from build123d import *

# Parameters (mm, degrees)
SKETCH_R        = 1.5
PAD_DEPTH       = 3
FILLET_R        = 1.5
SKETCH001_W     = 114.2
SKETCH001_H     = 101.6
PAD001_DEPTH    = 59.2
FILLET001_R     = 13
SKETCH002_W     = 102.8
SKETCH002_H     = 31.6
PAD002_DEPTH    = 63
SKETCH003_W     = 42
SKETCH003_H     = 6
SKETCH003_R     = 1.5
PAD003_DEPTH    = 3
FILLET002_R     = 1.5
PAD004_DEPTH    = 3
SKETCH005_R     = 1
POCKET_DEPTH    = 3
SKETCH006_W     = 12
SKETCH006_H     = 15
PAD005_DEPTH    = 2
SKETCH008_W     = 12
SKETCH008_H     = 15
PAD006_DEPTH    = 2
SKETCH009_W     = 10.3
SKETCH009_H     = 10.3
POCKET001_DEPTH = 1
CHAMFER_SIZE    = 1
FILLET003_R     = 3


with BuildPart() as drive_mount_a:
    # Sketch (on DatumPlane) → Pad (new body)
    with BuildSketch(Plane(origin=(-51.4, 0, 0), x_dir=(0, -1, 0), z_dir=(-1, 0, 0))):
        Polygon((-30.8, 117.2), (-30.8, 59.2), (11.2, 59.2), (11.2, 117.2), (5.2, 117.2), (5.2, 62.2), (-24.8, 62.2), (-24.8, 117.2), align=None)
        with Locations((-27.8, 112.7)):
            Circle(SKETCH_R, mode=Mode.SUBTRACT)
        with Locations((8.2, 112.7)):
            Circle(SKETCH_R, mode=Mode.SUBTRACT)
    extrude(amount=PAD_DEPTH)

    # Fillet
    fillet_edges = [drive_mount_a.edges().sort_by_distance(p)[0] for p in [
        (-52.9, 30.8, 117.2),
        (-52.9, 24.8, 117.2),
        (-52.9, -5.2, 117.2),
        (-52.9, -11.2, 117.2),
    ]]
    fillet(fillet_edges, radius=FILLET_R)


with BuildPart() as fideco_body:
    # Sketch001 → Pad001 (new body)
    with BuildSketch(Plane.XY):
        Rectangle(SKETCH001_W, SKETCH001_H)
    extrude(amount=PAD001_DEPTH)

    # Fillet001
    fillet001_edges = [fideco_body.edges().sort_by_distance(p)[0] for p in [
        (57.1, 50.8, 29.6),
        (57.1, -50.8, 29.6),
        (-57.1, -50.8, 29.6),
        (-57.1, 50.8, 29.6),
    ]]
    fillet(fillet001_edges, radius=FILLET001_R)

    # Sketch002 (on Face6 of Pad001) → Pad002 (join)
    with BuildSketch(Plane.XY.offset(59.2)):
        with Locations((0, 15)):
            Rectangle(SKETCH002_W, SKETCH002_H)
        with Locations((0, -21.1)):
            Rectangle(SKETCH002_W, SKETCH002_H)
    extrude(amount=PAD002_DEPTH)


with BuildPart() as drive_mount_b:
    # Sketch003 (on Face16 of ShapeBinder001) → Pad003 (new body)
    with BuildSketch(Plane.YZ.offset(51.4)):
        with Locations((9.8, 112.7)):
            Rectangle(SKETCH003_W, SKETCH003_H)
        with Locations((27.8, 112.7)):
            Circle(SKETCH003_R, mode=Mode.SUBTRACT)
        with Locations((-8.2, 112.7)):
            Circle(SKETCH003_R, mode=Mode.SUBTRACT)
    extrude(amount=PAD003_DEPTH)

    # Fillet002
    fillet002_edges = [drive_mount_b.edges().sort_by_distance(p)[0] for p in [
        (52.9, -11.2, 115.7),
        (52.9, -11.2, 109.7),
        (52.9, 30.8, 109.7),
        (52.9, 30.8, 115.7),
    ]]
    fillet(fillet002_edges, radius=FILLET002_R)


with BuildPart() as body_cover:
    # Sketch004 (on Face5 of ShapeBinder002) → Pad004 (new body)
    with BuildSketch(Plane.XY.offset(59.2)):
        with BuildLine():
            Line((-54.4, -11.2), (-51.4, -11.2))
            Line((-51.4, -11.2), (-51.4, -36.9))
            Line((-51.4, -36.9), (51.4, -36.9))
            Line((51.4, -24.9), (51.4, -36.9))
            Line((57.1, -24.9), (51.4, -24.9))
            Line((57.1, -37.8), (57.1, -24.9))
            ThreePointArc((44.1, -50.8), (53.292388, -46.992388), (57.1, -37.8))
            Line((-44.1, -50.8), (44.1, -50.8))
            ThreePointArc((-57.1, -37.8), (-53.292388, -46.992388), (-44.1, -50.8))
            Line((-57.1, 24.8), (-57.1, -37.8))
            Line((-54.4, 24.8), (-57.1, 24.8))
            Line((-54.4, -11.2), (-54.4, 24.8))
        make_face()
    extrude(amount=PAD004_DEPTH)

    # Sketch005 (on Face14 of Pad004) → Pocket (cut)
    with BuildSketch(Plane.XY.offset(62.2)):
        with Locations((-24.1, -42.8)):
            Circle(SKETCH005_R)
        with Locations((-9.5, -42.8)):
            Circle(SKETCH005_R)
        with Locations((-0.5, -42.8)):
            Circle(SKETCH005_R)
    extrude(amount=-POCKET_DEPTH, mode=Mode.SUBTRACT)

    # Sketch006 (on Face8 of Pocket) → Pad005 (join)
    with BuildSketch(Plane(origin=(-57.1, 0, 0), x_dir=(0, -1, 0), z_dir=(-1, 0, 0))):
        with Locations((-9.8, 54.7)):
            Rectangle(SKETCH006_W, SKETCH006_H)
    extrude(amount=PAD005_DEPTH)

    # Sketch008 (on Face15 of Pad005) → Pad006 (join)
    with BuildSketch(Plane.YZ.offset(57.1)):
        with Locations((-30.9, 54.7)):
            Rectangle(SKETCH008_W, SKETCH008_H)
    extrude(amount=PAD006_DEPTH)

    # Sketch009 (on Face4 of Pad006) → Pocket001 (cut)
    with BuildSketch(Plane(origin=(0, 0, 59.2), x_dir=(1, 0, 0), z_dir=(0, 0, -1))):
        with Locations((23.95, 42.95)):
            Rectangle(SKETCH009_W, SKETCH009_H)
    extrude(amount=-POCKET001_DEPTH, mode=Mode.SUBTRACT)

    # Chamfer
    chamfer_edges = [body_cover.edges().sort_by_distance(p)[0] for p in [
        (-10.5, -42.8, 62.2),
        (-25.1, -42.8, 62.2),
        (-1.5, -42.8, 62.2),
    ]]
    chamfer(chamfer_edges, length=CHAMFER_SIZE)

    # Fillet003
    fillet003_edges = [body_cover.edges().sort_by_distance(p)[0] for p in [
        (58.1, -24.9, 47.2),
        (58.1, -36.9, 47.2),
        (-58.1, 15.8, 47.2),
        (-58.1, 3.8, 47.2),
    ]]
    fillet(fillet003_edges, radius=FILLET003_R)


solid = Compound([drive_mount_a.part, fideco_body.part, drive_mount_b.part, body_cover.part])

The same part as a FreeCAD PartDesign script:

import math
import FreeCAD as App
import Part
import Sketcher

V = App.Vector


def edges_at(feature, points):
    """Names of the edges that pass closest to the given points."""
    edges = feature.Shape.Edges
    near = lambda p: min(range(len(edges)), key=lambda i: edges[i].distToShape(Part.Vertex(*p))[0])
    return sorted({f"Edge{near(p) + 1}" for p in points})

doc = App.newDocument("Part")
body = doc.addObject("PartDesign::Body", "Body")

# Sketch on YZ plane
sketch1 = doc.addObject("Sketcher::SketchObject", "Sketch")
body.addObject(sketch1)
sketch1.AttachmentSupport = (doc.YZ_Plane, [""])
sketch1.MapMode = "FlatFace"
sketch1.AttachmentOffset = App.Placement(V(0, 0, -51.4), App.Rotation())
sketch1.addGeometry([
    Part.LineSegment(V(30.8, 117.2, 0), V(30.8, 59.2, 0)),  # 0
    Part.LineSegment(V(30.8, 59.2, 0), V(-11.2, 59.2, 0)),  # 1
    Part.LineSegment(V(-11.2, 59.2, 0), V(-11.2, 117.2, 0)),  # 2
    Part.LineSegment(V(-11.2, 117.2, 0), V(-5.2, 117.2, 0)),  # 3
    Part.LineSegment(V(-5.2, 117.2, 0), V(-5.2, 62.2, 0)),  # 4
    Part.LineSegment(V(-5.2, 62.2, 0), V(24.8, 62.2, 0)),  # 5
    Part.LineSegment(V(24.8, 62.2, 0), V(24.8, 117.2, 0)),  # 6
    Part.LineSegment(V(24.8, 117.2, 0), V(30.8, 117.2, 0)),  # 7
    Part.Circle(V(27.8, 112.7, 0), V(0, 0, 1), 1.5),  # 8
    Part.Circle(V(-8.2, 112.7, 0), V(0, 0, 1), 1.5),  # 9
], False)
sketch1.addConstraint([
    Sketcher.Constraint("Coincident", 0, 2, 1, 1),
    Sketcher.Constraint("Coincident", 1, 2, 2, 1),
    Sketcher.Constraint("Coincident", 2, 2, 3, 1),
    Sketcher.Constraint("Coincident", 3, 2, 4, 1),
    Sketcher.Constraint("Coincident", 4, 2, 5, 1),
    Sketcher.Constraint("Coincident", 5, 2, 6, 1),
    Sketcher.Constraint("Coincident", 6, 2, 7, 1),
    Sketcher.Constraint("Coincident", 7, 2, 0, 1),
    Sketcher.Constraint("Vertical", 0),
    Sketcher.Constraint("Horizontal", 1),
    Sketcher.Constraint("Vertical", 2),
    Sketcher.Constraint("Horizontal", 3),
    Sketcher.Constraint("Vertical", 4),
    Sketcher.Constraint("Horizontal", 5),
    Sketcher.Constraint("Vertical", 6),
    Sketcher.Constraint("Horizontal", 7),
    Sketcher.Constraint("Equal", 8, 9),
    Sketcher.Constraint("Horizontal", 8, 3, 9, 3),
    Sketcher.Constraint("Horizontal", 3, 2, 6, 2),
    Sketcher.Constraint("Equal", 3, 7),
    Sketcher.Constraint("Diameter", 8, 3.0),
    Sketcher.Constraint("DistanceX", 1, 2, 1, 1, 42.0),
    Sketcher.Constraint("DistanceX", 3, 1, 3, 2, 6.0),
    Sketcher.Constraint("DistanceY", 0, 2, 0, 1, 58.0),
    Sketcher.Constraint("DistanceY", 4, 2, 4, 1, 55.0),
    Sketcher.Constraint("DistanceX", 9, 3, 8, 3, 36.0),
    Sketcher.Constraint("DistanceX", 8, 3, 0, 2, 3.0),
    Sketcher.Constraint("DistanceX", -1, 1, 8, 3, 27.8),
    Sketcher.Constraint("DistanceY", -1, 1, 8, 3, 112.7),
    Sketcher.Constraint("DistanceY", -1, 1, 0, 2, 59.2),
])
pad1 = doc.addObject("PartDesign::Pad", "Pad")
body.addObject(pad1)
pad1.Profile = sketch1
pad1.Length = 3
pad1.Reversed = True
doc.recompute()

fillet = doc.addObject("PartDesign::Fillet", "Fillet")
body.addObject(fillet)
fillet.Base = (pad1, edges_at(pad1, [
    (-52.9, 30.8, 117.2),
    (-52.9, 24.8, 117.2),
    (-52.9, -5.2, 117.2),
    (-52.9, -11.2, 117.2),
]))
fillet.Radius = 1.5
body2 = doc.addObject("PartDesign::Body", "Body001")

# Sketch on XY plane
sketch2 = doc.addObject("Sketcher::SketchObject", "Sketch001")
body2.addObject(sketch2)
sketch2.AttachmentSupport = (doc.getObject("XY_Plane001"), [""])
sketch2.MapMode = "FlatFace"
sketch2.addGeometry([
    Part.LineSegment(V(-57, 51, 0), V(-57, -51, 0)),
    Part.LineSegment(V(-57, -51, 0), V(57, -51, 0)),
    Part.LineSegment(V(57, -51, 0), V(57, 51, 0)),
    Part.LineSegment(V(57, 51, 0), V(-57, 51, 0)),
], False)
sketch2.addConstraint([
    Sketcher.Constraint("Coincident", 0, 2, 1, 1),
    Sketcher.Constraint("Coincident", 1, 2, 2, 1),
    Sketcher.Constraint("Coincident", 2, 2, 3, 1),
    Sketcher.Constraint("Coincident", 3, 2, 0, 1),
    Sketcher.Constraint("Vertical", 0),
    Sketcher.Constraint("Horizontal", 1),
    Sketcher.Constraint("Vertical", 2),
    Sketcher.Constraint("Horizontal", 3),
    Sketcher.Constraint("Symmetric", 0, 2, 2, 2, -1, 1),
    Sketcher.Constraint("DistanceX", 1, 1, 1, 2, 114.2),
    Sketcher.Constraint("DistanceY", 0, 2, 0, 1, 101.6),
])
pad2 = doc.addObject("PartDesign::Pad", "Pad001")
body2.addObject(pad2)
pad2.Profile = sketch2
pad2.Length = 59.2
doc.recompute()

fillet2 = doc.addObject("PartDesign::Fillet", "Fillet001")
body2.addObject(fillet2)
fillet2.Base = (pad2, edges_at(pad2, [
    (57.1, 50.8, 29.6),
    (57.1, -50.8, 29.6),
    (-57.1, -50.8, 29.6),
    (-57.1, 50.8, 29.6),
]))
fillet2.Radius = 13

# Sketch on XY plane
sketch3 = doc.addObject("Sketcher::SketchObject", "Sketch002")
body2.addObject(sketch3)
sketch3.AttachmentSupport = (doc.getObject("XY_Plane001"), [""])
sketch3.MapMode = "FlatFace"
sketch3.AttachmentOffset = App.Placement(V(0, 0, 59.2), App.Rotation())
sketch3.addGeometry([
    Part.LineSegment(V(-51, 31, 0), V(-51, -1, 0)),  # 0
    Part.LineSegment(V(-51, -1, 0), V(51, -1, 0)),  # 1
    Part.LineSegment(V(51, -1, 0), V(51, 31, 0)),  # 2
    Part.LineSegment(V(51, 31, 0), V(-51, 31, 0)),  # 3
    Part.LineSegment(V(-51, -5, 0), V(-51, -37, 0)),  # 4
    Part.LineSegment(V(-51, -37, 0), V(51, -37, 0)),  # 5
    Part.LineSegment(V(51, -37, 0), V(51, -5, 0)),  # 6
    Part.LineSegment(V(51, -5, 0), V(-51, -5, 0)),  # 7
], False)
sketch3.addConstraint([
    Sketcher.Constraint("Coincident", 0, 2, 1, 1),
    Sketcher.Constraint("Coincident", 1, 2, 2, 1),
    Sketcher.Constraint("Coincident", 2, 2, 3, 1),
    Sketcher.Constraint("Coincident", 3, 2, 0, 1),
    Sketcher.Constraint("Coincident", 4, 2, 5, 1),
    Sketcher.Constraint("Coincident", 5, 2, 6, 1),
    Sketcher.Constraint("Coincident", 6, 2, 7, 1),
    Sketcher.Constraint("Coincident", 7, 2, 4, 1),
    Sketcher.Constraint("Vertical", 0),
    Sketcher.Constraint("Horizontal", 1),
    Sketcher.Constraint("Vertical", 2),
    Sketcher.Constraint("Horizontal", 3),
    Sketcher.Constraint("Vertical", 4),
    Sketcher.Constraint("Horizontal", 5),
    Sketcher.Constraint("Vertical", 6),
    Sketcher.Constraint("Horizontal", 7),
    Sketcher.Constraint("Vertical", 3, 2, 4, 2),
    Sketcher.Constraint("Vertical", 2, 2, 5, 2),
    Sketcher.Constraint("Equal", 2, 4),
    Sketcher.Constraint("DistanceX", 1, 1, 1, 2, 102.8),
    Sketcher.Constraint("DistanceY", 0, 2, 0, 1, 31.6),
    Sketcher.Constraint("DistanceX", 0, 2, -1, 1, 51.4),
    Sketcher.Constraint("DistanceY", 0, 2, -1, 1, 0.8),
    Sketcher.Constraint("DistanceY", 4, 2, -1, 1, 36.9),
])
pad3 = doc.addObject("PartDesign::Pad", "Pad002")
body2.addObject(pad3)
pad3.Profile = sketch3
pad3.Length = 63
body3 = doc.addObject("PartDesign::Body", "Body002")

# Sketch on YZ plane
sketch4 = doc.addObject("Sketcher::SketchObject", "Sketch003")
body3.addObject(sketch4)
sketch4.AttachmentSupport = (doc.getObject("YZ_Plane002"), [""])
sketch4.MapMode = "FlatFace"
sketch4.AttachmentOffset = App.Placement(V(0, 0, 51.4), App.Rotation())
sketch4.addGeometry([
    Part.LineSegment(V(-11.2, 115.7, 0), V(-11.2, 109.7, 0)),  # 0
    Part.LineSegment(V(-11.2, 109.7, 0), V(30.8, 109.7, 0)),  # 1
    Part.LineSegment(V(30.8, 109.7, 0), V(30.8, 115.7, 0)),  # 2
    Part.LineSegment(V(30.8, 115.7, 0), V(-11.2, 115.7, 0)),  # 3
    Part.Circle(V(-8.2, 112.7, 0), V(0, 0, 1), 1.5),  # 4
    Part.Circle(V(27.8, 112.7, 0), V(0, 0, 1), 1.5),  # 5
], False)
sketch4.addConstraint([
    Sketcher.Constraint("Coincident", 0, 2, 1, 1),
    Sketcher.Constraint("Coincident", 1, 2, 2, 1),
    Sketcher.Constraint("Coincident", 2, 2, 3, 1),
    Sketcher.Constraint("Coincident", 3, 2, 0, 1),
    Sketcher.Constraint("Vertical", 0),
    Sketcher.Constraint("Horizontal", 1),
    Sketcher.Constraint("Vertical", 2),
    Sketcher.Constraint("Horizontal", 3),
    Sketcher.Constraint("Equal", 4, 5),
    Sketcher.Constraint("Horizontal", 4, 3, 5, 3),
    Sketcher.Constraint("Diameter", 4, 3.0),
    Sketcher.Constraint("DistanceX", 1, 1, 1, 2, 42.0),
    Sketcher.Constraint("DistanceY", 0, 2, 0, 1, 6.0),
    Sketcher.Constraint("DistanceX", 4, 3, 5, 3, 36.0),
    Sketcher.Constraint("DistanceX", 0, 2, 4, 3, 3.0),
    Sketcher.Constraint("DistanceY", 0, 2, 4, 3, 3.0),
    Sketcher.Constraint("DistanceX", 4, 3, -1, 1, 8.2),
    Sketcher.Constraint("DistanceY", -1, 1, 4, 3, 112.7),
])
pad4 = doc.addObject("PartDesign::Pad", "Pad003")
body3.addObject(pad4)
pad4.Profile = sketch4
pad4.Length = 3
doc.recompute()

fillet3 = doc.addObject("PartDesign::Fillet", "Fillet002")
body3.addObject(fillet3)
fillet3.Base = (pad4, edges_at(pad4, [
    (52.9, -11.2, 115.7),
    (52.9, -11.2, 109.7),
    (52.9, 30.8, 109.7),
    (52.9, 30.8, 115.7),
]))
fillet3.Radius = 1.5
body4 = doc.addObject("PartDesign::Body", "Body003")

# Sketch on XY plane
sketch5 = doc.addObject("Sketcher::SketchObject", "Sketch004")
body4.addObject(sketch5)
sketch5.AttachmentSupport = (doc.getObject("XY_Plane003"), [""])
sketch5.MapMode = "FlatFace"
sketch5.AttachmentOffset = App.Placement(V(0, 0, 59.2), App.Rotation())
sketch5.addGeometry([
    Part.LineSegment(V(-51.4, -11.2, 0), V(-54.4, -11.2, 0)),  # 0
    Part.LineSegment(V(-54.4, -11.2, 0), V(-54.4, 24.8, 0)),  # 1
    Part.LineSegment(V(-54.4, 24.8, 0), V(-57.1, 24.8, 0)),  # 2
    Part.LineSegment(V(-57.1, 24.8, 0), V(-57.1, -37.8, 0)),  # 3
    Part.ArcOfCircle(Part.Circle(V(-44.1, -37.8, 0), V(0, 0, 1), 13), math.radians(-180), math.radians(-90)),  # 4
    Part.LineSegment(V(-44.1, -50.8, 0), V(44.1, -50.8, 0)),  # 5
    Part.ArcOfCircle(Part.Circle(V(44.1, -37.8, 0), V(0, 0, 1), 13), math.radians(-90), math.radians(0)),  # 6
    Part.LineSegment(V(57.1, -37.8, 0), V(57.1, -24.9, 0)),  # 7
    Part.LineSegment(V(57.1, -24.9, 0), V(51.4, -24.9, 0)),  # 8
    Part.LineSegment(V(51.4, -24.9, 0), V(51.4, -36.9, 0)),  # 9
    Part.LineSegment(V(51.4, -36.9, 0), V(-51.4, -36.9, 0)),  # 10
    Part.LineSegment(V(-51.4, -36.9, 0), V(-51.4, -11.2, 0)),  # 11
], False)
sketch5.addConstraint([
    Sketcher.Constraint("Coincident", 0, 2, 1, 1),
    Sketcher.Constraint("Coincident", 1, 2, 2, 1),
    Sketcher.Constraint("Coincident", 2, 2, 3, 1),
    Sketcher.Constraint("Tangent", 3, 2, 4, 1),
    Sketcher.Constraint("Tangent", 4, 2, 5, 1),
    Sketcher.Constraint("Tangent", 5, 2, 6, 1),
    Sketcher.Constraint("Tangent", 6, 2, 7, 1),
    Sketcher.Constraint("Coincident", 7, 2, 8, 1),
    Sketcher.Constraint("Coincident", 8, 2, 9, 1),
    Sketcher.Constraint("Coincident", 9, 2, 10, 1),
    Sketcher.Constraint("Coincident", 10, 2, 11, 1),
    Sketcher.Constraint("Coincident", 11, 2, 0, 1),
    Sketcher.Constraint("Horizontal", 0),
    Sketcher.Constraint("Vertical", 1),
    Sketcher.Constraint("Horizontal", 2),
    Sketcher.Constraint("Vertical", 3),
    Sketcher.Constraint("Horizontal", 5),
    Sketcher.Constraint("Vertical", 7),
    Sketcher.Constraint("Horizontal", 8),
    Sketcher.Constraint("Vertical", 9),
    Sketcher.Constraint("Horizontal", 10),
    Sketcher.Constraint("Vertical", 11),
    Sketcher.Constraint("Equal", 4, 6),
    Sketcher.Constraint("Radius", 4, 13.000001),
    Sketcher.Constraint("DistanceX", 0, 2, 0, 1, 3.0),
    Sketcher.Constraint("DistanceY", 1, 1, 1, 2, 36.0),
    Sketcher.Constraint("DistanceY", 9, 2, 9, 1, 12.0),
    Sketcher.Constraint("DistanceX", 2, 2, 2, 1, 2.7),
    Sketcher.Constraint("DistanceX", 5, 1, 5, 2, 88.2),
    Sketcher.Constraint("DistanceX", 8, 2, 8, 1, 5.7),
    Sketcher.Constraint("DistanceY", 3, 2, 3, 1, 62.6),
    Sketcher.Constraint("DistanceY", 7, 1, 7, 2, 12.9),
    Sketcher.Constraint("DistanceX", 4, 3, -1, 1, 44.099999),
    Sketcher.Constraint("DistanceY", 4, 3, -1, 1, 37.799999),
])
pad5 = doc.addObject("PartDesign::Pad", "Pad004")
body4.addObject(pad5)
pad5.Profile = sketch5
pad5.Length = 3

# Sketch on XY plane
sketch6 = doc.addObject("Sketcher::SketchObject", "Sketch005")
body4.addObject(sketch6)
sketch6.AttachmentSupport = (doc.getObject("XY_Plane003"), [""])
sketch6.MapMode = "FlatFace"
sketch6.AttachmentOffset = App.Placement(V(0, 0, 62.2), App.Rotation())
sketch6.addGeometry([
    Part.Circle(V(-24.1, -42.8, 0), V(0, 0, 1), 1),
    Part.Circle(V(-9.5, -42.8, 0), V(0, 0, 1), 1),
    Part.Circle(V(-0.5, -42.8, 0), V(0, 0, 1), 1),
], False)
sketch6.addConstraint([
    Sketcher.Constraint("Equal", 0, 1),
    Sketcher.Constraint("Equal", 1, 2),
    Sketcher.Constraint("Horizontal", 0, 3, 1, 3),
    Sketcher.Constraint("Horizontal", 1, 3, 2, 3),
    Sketcher.Constraint("Diameter", 0, 2.0),
    Sketcher.Constraint("DistanceX", 1, 3, 2, 3, 9.0),
    Sketcher.Constraint("DistanceX", 0, 3, -1, 1, 24.1),
    Sketcher.Constraint("DistanceY", 0, 3, -1, 1, 42.8),
    Sketcher.Constraint("DistanceX", 1, 3, -1, 1, 9.5),
])
pocket1 = doc.addObject("PartDesign::Pocket", "Pocket")
body4.addObject(pocket1)
pocket1.Profile = sketch6
pocket1.Length = 3

# Sketch on YZ plane
sketch7 = doc.addObject("Sketcher::SketchObject", "Sketch006")
body4.addObject(sketch7)
sketch7.AttachmentSupport = (doc.getObject("YZ_Plane003"), [""])
sketch7.MapMode = "FlatFace"
sketch7.AttachmentOffset = App.Placement(V(0, 0, -57.1), App.Rotation())
sketch7.addGeometry([
    Part.LineSegment(V(16, 62, 0), V(16, 47, 0)),
    Part.LineSegment(V(16, 47, 0), V(4, 47, 0)),
    Part.LineSegment(V(4, 47, 0), V(4, 62, 0)),
    Part.LineSegment(V(4, 62, 0), V(16, 62, 0)),
], False)
sketch7.addConstraint([
    Sketcher.Constraint("Coincident", 0, 2, 1, 1),
    Sketcher.Constraint("Coincident", 1, 2, 2, 1),
    Sketcher.Constraint("Coincident", 2, 2, 3, 1),
    Sketcher.Constraint("Coincident", 3, 2, 0, 1),
    Sketcher.Constraint("Vertical", 0),
    Sketcher.Constraint("Horizontal", 1),
    Sketcher.Constraint("Vertical", 2),
    Sketcher.Constraint("Horizontal", 3),
    Sketcher.Constraint("DistanceX", 1, 2, 1, 1, 12.0),
    Sketcher.Constraint("DistanceY", 0, 2, 0, 1, 15.0),
    Sketcher.Constraint("DistanceX", -1, 1, 0, 2, 15.8),
    Sketcher.Constraint("DistanceY", -1, 1, 0, 2, 47.2),
])
pad6 = doc.addObject("PartDesign::Pad", "Pad005")
body4.addObject(pad6)
pad6.Profile = sketch7
pad6.Length = 2
pad6.Reversed = True

# Sketch on YZ plane
sketch8 = doc.addObject("Sketcher::SketchObject", "Sketch007")
body4.addObject(sketch8)
sketch8.AttachmentSupport = (doc.getObject("YZ_Plane003"), [""])
sketch8.MapMode = "FlatFace"
sketch8.AttachmentOffset = App.Placement(V(0, 0, 57.1), App.Rotation())
sketch8.addGeometry([
    Part.LineSegment(V(-37, 62, 0), V(-37, 47, 0)),
    Part.LineSegment(V(-37, 47, 0), V(-25, 47, 0)),
    Part.LineSegment(V(-25, 47, 0), V(-25, 62, 0)),
    Part.LineSegment(V(-25, 62, 0), V(-37, 62, 0)),
], False)
sketch8.addConstraint([
    Sketcher.Constraint("Coincident", 0, 2, 1, 1),
    Sketcher.Constraint("Coincident", 1, 2, 2, 1),
    Sketcher.Constraint("Coincident", 2, 2, 3, 1),
    Sketcher.Constraint("Coincident", 3, 2, 0, 1),
    Sketcher.Constraint("Vertical", 0),
    Sketcher.Constraint("Horizontal", 1),
    Sketcher.Constraint("Vertical", 2),
    Sketcher.Constraint("Horizontal", 3),
    Sketcher.Constraint("DistanceX", 1, 1, 1, 2, 12.0),
    Sketcher.Constraint("DistanceY", 0, 2, 0, 1, 15.0),
    Sketcher.Constraint("DistanceX", 0, 2, -1, 1, 36.9),
    Sketcher.Constraint("DistanceY", -1, 1, 0, 2, 47.2),
])
pad7 = doc.addObject("PartDesign::Pad", "Pad006")
body4.addObject(pad7)
pad7.Profile = sketch8
pad7.Length = 2

# Sketch on XY plane
sketch9 = doc.addObject("Sketcher::SketchObject", "Sketch008")
body4.addObject(sketch9)
sketch9.AttachmentSupport = (doc.getObject("XY_Plane003"), [""])
sketch9.MapMode = "FlatFace"
sketch9.AttachmentOffset = App.Placement(V(0, 0, 59.2), App.Rotation())
sketch9.addGeometry([
    Part.LineSegment(V(19, -48, 0), V(19, -38, 0)),
    Part.LineSegment(V(19, -38, 0), V(29, -38, 0)),
    Part.LineSegment(V(29, -38, 0), V(29, -48, 0)),
    Part.LineSegment(V(29, -48, 0), V(19, -48, 0)),
], False)
sketch9.addConstraint([
    Sketcher.Constraint("Coincident", 0, 2, 1, 1),
    Sketcher.Constraint("Coincident", 1, 2, 2, 1),
    Sketcher.Constraint("Coincident", 2, 2, 3, 1),
    Sketcher.Constraint("Coincident", 3, 2, 0, 1),
    Sketcher.Constraint("Vertical", 0),
    Sketcher.Constraint("Horizontal", 1),
    Sketcher.Constraint("Vertical", 2),
    Sketcher.Constraint("Horizontal", 3),
    Sketcher.Constraint("Equal", 3, 0),
    Sketcher.Constraint("DistanceX", 1, 1, 1, 2, 10.3),
    Sketcher.Constraint("DistanceX", -1, 1, 0, 2, 18.8),
    Sketcher.Constraint("DistanceY", 0, 2, -1, 1, 37.8),
])
pocket2 = doc.addObject("PartDesign::Pocket", "Pocket001")
body4.addObject(pocket2)
pocket2.Profile = sketch9
pocket2.Length = 1
pocket2.Reversed = True
doc.recompute()

chamfer = doc.addObject("PartDesign::Chamfer", "Chamfer")
body4.addObject(chamfer)
chamfer.Base = (pocket2, edges_at(pocket2, [(-10.5, -42.8, 62.2), (-25.1, -42.8, 62.2), (-1.5, -42.8, 62.2)]))
chamfer.Size = 1
doc.recompute()

fillet4 = doc.addObject("PartDesign::Fillet", "Fillet003")
body4.addObject(fillet4)
fillet4.Base = (chamfer, edges_at(chamfer, [
    (58.1, -24.9, 47.2),
    (58.1, -36.9, 47.2),
    (-58.1, 15.8, 47.2),
    (-58.1, 3.8, 47.2),
]))
fillet4.Radius = 3

doc.recompute()
